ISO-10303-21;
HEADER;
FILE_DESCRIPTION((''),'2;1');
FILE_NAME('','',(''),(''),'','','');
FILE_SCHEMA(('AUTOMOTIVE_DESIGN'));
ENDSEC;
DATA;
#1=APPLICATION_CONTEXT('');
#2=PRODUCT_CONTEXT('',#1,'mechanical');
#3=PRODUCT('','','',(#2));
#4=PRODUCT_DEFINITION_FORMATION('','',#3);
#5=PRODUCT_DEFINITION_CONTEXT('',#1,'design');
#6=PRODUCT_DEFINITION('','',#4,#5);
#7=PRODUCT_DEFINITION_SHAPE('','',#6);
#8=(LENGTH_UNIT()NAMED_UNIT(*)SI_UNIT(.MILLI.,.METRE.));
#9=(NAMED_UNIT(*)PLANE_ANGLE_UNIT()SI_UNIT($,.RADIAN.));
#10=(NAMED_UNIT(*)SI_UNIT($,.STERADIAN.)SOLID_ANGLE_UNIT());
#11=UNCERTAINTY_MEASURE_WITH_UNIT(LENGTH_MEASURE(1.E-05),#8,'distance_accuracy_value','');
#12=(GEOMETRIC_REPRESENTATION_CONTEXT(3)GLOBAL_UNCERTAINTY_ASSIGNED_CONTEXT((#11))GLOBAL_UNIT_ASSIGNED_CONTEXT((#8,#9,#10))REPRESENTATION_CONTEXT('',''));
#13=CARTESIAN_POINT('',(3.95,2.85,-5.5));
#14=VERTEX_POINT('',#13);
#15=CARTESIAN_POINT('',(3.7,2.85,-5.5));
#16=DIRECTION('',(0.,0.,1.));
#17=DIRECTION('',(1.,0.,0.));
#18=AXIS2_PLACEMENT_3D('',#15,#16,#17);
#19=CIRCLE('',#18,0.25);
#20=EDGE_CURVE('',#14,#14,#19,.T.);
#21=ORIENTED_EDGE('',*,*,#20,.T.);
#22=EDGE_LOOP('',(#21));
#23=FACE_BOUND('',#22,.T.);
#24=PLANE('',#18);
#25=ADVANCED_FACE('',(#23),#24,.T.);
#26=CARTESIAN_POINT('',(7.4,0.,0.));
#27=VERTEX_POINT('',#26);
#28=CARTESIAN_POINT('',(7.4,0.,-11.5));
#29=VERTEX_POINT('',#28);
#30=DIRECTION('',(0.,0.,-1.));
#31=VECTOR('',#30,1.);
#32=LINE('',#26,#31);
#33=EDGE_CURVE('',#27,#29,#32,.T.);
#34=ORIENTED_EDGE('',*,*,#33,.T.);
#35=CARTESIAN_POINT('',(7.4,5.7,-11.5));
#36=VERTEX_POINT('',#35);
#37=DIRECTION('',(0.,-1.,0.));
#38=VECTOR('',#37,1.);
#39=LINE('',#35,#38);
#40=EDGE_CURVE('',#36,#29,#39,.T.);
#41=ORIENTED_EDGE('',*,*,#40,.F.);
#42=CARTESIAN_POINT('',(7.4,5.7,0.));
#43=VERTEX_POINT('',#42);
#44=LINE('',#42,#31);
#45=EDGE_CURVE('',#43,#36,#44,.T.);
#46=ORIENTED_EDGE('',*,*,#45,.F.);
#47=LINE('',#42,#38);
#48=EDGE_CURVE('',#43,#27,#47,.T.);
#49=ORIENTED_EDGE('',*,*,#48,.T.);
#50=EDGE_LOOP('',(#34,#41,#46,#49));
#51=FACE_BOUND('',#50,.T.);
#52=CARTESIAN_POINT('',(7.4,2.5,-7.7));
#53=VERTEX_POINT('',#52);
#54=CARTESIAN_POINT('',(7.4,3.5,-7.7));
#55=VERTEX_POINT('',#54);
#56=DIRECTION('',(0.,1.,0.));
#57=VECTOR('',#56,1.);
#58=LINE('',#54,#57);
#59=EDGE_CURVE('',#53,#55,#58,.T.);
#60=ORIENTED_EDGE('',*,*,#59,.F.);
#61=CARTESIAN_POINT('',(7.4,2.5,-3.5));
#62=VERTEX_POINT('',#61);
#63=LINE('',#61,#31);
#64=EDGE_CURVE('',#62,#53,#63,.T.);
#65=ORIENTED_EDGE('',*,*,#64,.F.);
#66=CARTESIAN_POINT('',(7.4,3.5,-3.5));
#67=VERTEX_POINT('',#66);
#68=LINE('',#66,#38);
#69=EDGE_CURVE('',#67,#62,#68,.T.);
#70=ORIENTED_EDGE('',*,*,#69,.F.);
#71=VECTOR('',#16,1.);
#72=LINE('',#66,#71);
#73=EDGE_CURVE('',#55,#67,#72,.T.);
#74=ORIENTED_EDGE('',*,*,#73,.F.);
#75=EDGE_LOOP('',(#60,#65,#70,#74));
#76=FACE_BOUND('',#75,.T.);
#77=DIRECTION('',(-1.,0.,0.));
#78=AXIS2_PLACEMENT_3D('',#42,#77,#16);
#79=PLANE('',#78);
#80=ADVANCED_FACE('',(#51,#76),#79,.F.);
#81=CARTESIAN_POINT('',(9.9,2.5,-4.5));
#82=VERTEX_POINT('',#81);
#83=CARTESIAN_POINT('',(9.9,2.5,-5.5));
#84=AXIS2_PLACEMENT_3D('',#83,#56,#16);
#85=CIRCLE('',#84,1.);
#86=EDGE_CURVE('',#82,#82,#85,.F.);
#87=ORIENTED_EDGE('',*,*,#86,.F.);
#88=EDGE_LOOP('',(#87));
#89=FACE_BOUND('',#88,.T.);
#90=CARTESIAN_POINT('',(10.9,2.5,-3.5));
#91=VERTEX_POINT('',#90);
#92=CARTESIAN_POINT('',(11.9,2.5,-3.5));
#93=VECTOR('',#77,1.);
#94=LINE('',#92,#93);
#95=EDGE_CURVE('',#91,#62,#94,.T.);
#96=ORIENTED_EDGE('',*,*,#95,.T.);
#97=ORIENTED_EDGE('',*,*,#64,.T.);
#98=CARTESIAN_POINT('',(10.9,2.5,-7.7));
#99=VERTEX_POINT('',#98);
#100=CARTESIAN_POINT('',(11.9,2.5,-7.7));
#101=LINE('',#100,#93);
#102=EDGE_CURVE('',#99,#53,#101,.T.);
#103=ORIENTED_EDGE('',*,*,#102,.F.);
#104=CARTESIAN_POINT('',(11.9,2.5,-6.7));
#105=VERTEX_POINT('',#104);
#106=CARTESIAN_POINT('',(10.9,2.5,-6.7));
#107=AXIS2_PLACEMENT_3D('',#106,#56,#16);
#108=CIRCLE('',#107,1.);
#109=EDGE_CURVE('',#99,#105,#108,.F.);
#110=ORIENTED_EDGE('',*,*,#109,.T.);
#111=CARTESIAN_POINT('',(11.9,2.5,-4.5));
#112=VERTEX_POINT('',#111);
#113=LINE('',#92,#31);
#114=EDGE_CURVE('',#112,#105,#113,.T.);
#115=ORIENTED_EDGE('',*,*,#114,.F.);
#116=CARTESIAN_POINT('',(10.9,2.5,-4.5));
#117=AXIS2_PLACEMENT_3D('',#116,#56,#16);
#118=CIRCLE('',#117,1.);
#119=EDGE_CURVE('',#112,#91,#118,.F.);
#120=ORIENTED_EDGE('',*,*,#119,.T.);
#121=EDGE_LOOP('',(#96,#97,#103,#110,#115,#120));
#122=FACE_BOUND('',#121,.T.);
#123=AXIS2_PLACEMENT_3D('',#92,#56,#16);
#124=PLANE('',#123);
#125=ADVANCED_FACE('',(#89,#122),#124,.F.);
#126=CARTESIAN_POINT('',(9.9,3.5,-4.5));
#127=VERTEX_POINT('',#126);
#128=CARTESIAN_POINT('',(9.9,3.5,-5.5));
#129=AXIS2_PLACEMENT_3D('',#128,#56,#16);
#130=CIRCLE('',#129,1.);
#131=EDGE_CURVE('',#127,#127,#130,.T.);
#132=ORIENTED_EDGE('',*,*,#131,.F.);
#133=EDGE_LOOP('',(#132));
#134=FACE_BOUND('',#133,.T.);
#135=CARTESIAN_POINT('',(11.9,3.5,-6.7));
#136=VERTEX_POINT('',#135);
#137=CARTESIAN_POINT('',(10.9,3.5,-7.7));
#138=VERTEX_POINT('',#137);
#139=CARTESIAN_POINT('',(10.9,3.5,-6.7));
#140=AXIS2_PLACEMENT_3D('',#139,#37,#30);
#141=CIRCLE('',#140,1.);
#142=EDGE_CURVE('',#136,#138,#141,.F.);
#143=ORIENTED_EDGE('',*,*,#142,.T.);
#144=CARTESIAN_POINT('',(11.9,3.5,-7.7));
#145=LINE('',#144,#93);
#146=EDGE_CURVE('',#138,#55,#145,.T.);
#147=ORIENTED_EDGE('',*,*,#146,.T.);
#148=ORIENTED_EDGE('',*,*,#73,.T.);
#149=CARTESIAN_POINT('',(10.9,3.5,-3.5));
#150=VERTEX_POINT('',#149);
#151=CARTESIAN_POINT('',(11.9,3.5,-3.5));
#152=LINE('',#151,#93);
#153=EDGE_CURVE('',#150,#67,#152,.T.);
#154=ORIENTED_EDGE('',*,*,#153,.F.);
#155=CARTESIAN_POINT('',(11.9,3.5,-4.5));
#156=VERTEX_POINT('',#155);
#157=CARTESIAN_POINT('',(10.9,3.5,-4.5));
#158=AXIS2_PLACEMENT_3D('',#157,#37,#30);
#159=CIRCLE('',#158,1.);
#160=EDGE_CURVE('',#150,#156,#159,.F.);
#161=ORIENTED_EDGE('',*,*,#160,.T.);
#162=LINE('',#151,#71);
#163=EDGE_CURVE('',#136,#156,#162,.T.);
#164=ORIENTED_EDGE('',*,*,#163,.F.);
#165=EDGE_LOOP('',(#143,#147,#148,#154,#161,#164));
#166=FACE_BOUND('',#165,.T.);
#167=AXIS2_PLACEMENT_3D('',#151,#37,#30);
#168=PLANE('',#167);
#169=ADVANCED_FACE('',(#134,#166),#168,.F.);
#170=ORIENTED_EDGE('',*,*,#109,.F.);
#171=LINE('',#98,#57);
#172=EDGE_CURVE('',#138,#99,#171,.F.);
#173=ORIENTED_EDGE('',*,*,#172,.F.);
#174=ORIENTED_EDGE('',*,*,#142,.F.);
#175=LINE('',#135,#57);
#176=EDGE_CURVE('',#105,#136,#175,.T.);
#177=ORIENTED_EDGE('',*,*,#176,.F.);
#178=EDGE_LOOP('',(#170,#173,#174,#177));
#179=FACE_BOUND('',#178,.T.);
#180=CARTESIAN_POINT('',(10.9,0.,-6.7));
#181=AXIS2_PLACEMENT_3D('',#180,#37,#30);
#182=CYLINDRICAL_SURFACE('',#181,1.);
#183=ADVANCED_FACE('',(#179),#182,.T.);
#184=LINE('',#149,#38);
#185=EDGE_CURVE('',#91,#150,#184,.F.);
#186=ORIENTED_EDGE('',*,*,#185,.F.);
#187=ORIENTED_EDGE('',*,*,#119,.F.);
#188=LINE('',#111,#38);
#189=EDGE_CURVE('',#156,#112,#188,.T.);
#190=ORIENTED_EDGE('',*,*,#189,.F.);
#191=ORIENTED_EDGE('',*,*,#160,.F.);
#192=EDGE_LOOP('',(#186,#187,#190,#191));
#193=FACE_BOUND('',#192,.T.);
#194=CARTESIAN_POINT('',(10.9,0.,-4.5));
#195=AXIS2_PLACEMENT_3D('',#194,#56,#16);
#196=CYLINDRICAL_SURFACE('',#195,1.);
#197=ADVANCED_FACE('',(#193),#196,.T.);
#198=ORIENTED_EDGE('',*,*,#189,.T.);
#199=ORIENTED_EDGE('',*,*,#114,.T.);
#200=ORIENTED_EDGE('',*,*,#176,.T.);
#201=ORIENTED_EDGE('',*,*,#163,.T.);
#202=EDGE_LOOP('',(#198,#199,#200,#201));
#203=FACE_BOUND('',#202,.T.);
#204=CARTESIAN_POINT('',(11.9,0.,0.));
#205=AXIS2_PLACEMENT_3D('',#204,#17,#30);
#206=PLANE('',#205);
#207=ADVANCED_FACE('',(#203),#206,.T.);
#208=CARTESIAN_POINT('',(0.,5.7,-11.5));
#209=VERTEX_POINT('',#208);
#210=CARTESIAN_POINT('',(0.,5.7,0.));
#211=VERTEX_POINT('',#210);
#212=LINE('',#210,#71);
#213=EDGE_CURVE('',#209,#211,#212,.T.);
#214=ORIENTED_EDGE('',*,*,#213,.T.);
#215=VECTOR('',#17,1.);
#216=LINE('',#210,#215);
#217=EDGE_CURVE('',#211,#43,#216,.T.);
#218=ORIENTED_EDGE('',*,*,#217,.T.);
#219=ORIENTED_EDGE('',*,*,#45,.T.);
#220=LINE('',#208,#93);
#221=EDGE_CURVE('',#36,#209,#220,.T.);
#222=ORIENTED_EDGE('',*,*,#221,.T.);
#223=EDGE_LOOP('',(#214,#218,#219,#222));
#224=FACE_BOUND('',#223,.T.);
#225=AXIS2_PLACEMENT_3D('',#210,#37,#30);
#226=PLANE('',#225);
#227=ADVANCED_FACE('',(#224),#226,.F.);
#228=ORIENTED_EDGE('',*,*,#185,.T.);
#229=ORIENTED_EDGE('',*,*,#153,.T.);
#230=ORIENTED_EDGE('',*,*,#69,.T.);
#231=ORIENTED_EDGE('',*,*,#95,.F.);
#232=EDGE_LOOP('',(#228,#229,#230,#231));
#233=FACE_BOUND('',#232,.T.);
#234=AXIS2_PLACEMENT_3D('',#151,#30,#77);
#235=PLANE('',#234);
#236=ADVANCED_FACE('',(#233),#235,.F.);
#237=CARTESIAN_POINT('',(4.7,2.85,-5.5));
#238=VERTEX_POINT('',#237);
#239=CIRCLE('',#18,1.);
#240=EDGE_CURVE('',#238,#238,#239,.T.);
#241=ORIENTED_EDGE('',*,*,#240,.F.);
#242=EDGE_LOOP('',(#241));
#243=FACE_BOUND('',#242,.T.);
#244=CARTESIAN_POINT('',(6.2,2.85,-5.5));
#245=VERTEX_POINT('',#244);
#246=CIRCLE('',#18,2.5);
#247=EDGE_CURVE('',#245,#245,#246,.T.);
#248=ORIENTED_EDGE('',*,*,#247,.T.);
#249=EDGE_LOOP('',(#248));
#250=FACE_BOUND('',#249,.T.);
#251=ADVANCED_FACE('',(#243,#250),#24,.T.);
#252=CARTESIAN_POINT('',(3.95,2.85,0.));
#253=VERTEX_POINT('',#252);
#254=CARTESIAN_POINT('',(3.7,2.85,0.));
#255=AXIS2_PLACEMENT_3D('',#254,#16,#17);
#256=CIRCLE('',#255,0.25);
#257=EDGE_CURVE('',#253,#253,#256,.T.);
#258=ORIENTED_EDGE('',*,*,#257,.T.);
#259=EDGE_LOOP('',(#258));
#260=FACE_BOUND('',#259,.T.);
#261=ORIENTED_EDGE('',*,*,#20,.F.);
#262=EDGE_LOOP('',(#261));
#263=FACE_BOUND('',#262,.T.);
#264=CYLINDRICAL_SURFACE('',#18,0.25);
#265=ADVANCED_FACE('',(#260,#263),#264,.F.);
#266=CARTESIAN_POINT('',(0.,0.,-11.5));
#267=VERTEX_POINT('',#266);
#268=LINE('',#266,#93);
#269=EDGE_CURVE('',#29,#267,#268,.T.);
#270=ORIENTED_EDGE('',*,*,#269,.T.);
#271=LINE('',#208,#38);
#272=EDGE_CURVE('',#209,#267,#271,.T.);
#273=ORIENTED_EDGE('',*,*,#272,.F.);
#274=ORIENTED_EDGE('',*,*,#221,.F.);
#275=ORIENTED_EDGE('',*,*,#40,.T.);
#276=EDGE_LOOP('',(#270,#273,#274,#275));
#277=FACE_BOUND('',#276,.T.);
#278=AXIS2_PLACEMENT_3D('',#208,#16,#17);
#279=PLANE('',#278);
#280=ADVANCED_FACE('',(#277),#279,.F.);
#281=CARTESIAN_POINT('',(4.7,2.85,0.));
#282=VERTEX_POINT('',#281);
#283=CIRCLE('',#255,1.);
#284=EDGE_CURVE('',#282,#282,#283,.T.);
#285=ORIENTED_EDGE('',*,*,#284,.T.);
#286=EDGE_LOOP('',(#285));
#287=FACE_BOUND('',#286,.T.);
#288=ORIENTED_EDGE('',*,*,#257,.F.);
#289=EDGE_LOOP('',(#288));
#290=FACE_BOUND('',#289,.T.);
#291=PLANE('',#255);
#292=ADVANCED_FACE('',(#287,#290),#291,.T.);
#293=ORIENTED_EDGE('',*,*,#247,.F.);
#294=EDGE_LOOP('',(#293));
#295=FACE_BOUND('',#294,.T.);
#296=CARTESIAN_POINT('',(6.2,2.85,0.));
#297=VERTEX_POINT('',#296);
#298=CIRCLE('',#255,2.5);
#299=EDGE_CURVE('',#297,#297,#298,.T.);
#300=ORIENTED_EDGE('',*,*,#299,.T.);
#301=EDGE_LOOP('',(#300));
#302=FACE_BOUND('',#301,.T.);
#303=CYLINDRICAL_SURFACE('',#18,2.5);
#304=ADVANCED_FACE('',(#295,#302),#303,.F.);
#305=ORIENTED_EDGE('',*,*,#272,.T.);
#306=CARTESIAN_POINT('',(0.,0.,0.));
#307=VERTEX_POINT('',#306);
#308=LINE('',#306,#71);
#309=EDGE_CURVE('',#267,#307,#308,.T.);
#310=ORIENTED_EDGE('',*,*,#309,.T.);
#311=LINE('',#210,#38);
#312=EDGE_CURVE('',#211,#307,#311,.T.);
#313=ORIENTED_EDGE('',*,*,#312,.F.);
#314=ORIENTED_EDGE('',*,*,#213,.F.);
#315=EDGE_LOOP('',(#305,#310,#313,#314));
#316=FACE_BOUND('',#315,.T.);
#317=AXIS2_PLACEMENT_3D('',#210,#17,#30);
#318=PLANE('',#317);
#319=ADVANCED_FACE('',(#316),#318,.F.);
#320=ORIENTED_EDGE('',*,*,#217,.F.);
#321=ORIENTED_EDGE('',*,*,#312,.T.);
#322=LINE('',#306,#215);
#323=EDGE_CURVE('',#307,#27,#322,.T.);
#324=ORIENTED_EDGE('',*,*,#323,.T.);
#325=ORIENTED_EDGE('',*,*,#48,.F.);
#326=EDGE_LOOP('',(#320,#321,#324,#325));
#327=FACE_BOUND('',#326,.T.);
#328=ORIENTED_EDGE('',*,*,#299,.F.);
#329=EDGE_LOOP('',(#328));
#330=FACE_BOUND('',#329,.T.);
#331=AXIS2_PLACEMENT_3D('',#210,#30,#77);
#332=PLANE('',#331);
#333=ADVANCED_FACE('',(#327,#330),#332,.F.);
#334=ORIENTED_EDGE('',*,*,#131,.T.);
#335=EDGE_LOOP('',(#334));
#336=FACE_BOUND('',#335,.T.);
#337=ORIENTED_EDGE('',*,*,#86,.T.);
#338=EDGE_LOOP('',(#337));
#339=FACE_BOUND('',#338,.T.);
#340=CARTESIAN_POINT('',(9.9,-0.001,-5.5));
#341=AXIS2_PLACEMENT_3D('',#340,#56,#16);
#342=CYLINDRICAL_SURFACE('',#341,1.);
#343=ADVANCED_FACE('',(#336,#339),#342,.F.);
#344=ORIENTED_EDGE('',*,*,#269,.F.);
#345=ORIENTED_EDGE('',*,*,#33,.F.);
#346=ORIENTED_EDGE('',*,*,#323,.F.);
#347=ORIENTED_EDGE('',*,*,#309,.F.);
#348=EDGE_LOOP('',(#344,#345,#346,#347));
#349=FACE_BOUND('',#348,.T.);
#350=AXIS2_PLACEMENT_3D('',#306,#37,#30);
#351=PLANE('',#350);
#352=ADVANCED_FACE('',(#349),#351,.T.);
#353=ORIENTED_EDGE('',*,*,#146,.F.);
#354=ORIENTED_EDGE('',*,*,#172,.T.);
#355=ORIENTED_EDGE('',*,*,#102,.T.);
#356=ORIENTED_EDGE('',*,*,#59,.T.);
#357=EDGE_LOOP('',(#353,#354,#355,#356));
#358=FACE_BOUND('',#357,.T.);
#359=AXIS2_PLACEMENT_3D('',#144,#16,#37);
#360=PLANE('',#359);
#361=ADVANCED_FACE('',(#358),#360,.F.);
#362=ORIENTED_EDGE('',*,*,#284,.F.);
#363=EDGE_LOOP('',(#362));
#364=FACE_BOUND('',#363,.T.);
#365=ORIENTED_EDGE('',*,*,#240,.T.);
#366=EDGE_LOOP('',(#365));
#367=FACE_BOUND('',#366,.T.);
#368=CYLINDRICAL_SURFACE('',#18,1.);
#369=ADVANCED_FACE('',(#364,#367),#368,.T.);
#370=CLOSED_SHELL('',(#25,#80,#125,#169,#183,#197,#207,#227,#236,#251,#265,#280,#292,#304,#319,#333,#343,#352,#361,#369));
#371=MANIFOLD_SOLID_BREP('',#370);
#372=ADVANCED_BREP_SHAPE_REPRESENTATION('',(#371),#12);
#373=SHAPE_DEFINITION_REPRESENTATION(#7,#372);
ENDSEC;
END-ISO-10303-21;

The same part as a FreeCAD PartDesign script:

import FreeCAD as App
import Part
import Sketcher

V = App.Vector


def edges_at(feature, points):
    """Names of the edges that pass closest to the given points."""
    edges = feature.Shape.Edges
    near = lambda p: min(range(len(edges)), key=lambda i: edges[i].distToShape(Part.Vertex(*p))[0])
    return sorted({f"Edge{near(p) + 1}" for p in points})

doc = App.newDocument("Part")
params = doc.addObject("Spreadsheet::Sheet", "Params")
for row, (alias, value) in enumerate([
    ("sketch1_width", "7.4 mm"),
    ("sketch1_height", "11.5 mm"),
    ("pad1_length", "5.7 mm"),
    ("sketch2_diameter", "5 mm"),
    ("pocket1_length", "5.5 mm"),
    ("sketch3_diameter", "2 mm"),
    ("pad2_length", "5.5 mm"),
    ("sketch4_diameter", "0.5 mm"),
    ("pocket2_length", "5.5 mm"),
    ("sketch5_width", "1 mm"),
    ("sketch5_height", "4.2 mm"),
    ("pad3_length", "4.5 mm"),
    ("fillet_radius", "1 mm"),
    ("sketch6_diameter", "2 mm"),
], start=1):
    params.set(f"A{row}", alias)
    params.set(f"B{row}", "=" + value)
    params.setAlias(f"B{row}", alias)

body = doc.addObject("PartDesign::Body", "Body")

# Sketch on XZ plane
sketch1 = doc.addObject("Sketcher::SketchObject", "Sketch")
body.addObject(sketch1)
sketch1.AttachmentSupport = (doc.XZ_Plane, [""])
sketch1.MapMode = "FlatFace"
sketch1.addGeometry(Part.LineSegment(V(0, -12, 0), V(0, 0, 0)), False)
sketch1.addGeometry(Part.LineSegment(V(0, 0, 0), V(7, 0, 0)), False)
sketch1.addGeometry(Part.LineSegment(V(7, 0, 0), V(7, -12, 0)), False)
sketch1.addGeometry(Part.LineSegment(V(7, -12, 0), V(0, -12, 0)), False)
sketch1.addConstraint(Sketcher.Constraint("Coincident", 0, 2, 1, 1))
sketch1.addConstraint(Sketcher.Constraint("Coincident", 1, 2, 2, 1))
sketch1.addConstraint(Sketcher.Constraint("Coincident", 2, 2, 3, 1))
sketch1.addConstraint(Sketcher.Constraint("Coincident", 3, 2, 0, 1))
sketch1.addConstraint(Sketcher.Constraint("Vertical", 0))
sketch1.addConstraint(Sketcher.Constraint("Horizontal", 1))
sketch1.addConstraint(Sketcher.Constraint("Vertical", 2))
sketch1.addConstraint(Sketcher.Constraint("Horizontal", 3))
sketch1.addConstraint(Sketcher.Constraint("Coincident", 0, 2, -1, 1))
sketch1.addConstraint(Sketcher.Constraint("DistanceX", 1, 1, 1, 2, 7.4))
sketch1.addConstraint(Sketcher.Constraint("DistanceY", 0, 1, 0, 2, 11.5))
sketch1.setExpression("Constraints[9]", "Params.sketch1_width")
sketch1.setExpression("Constraints[10]", "Params.sketch1_height")
pad1 = doc.addObject("PartDesign::Pad", "Pad")
body.addObject(pad1)
pad1.Profile = sketch1
pad1.setExpression("Length", "Params.pad1_length")
pad1.Reversed = True

# Sketch on XY plane
sketch2 = doc.addObject("Sketcher::SketchObject", "Sketch001")
body.addObject(sketch2)
sketch2.AttachmentSupport = (doc.XY_Plane, [""])
sketch2.MapMode = "FlatFace"
sketch2.addGeometry(Part.Circle(V(3.7, 2.9, 0), V(0, 0, 1), 2.5), False)
sketch2.addConstraint(Sketcher.Constraint("Diameter", 0, 5.0))
sketch2.addConstraint(Sketcher.Constraint("DistanceX", -1, 1, 0, 3, 3.7))
sketch2.addConstraint(Sketcher.Constraint("DistanceY", -1, 1, 0, 3, 2.85))
sketch2.setExpression("Constraints[0]", "Params.sketch2_diameter")
pocket1 = doc.addObject("PartDesign::Pocket", "Pocket")
body.addObject(pocket1)
pocket1.Profile = sketch2
pocket1.setExpression("Length", "Params.pocket1_length")

# Sketch on XY plane
sketch3 = doc.addObject("Sketcher::SketchObject", "Sketch002")
body.addObject(sketch3)
sketch3.AttachmentSupport = (doc.XY_Plane, [""])
sketch3.MapMode = "FlatFace"
sketch3.addGeometry(Part.Circle(V(3.7, 2.9, 0), V(0, 0, 1), 1), False)
sketch3.addConstraint(Sketcher.Constraint("Diameter", 0, 2.0))
sketch3.addConstraint(Sketcher.Constraint("DistanceX", -1, 1, 0, 3, 3.7))
sketch3.addConstraint(Sketcher.Constraint("DistanceY", -1, 1, 0, 3, 2.85))
sketch3.setExpression("Constraints[0]", "Params.sketch3_diameter")
pad2 = doc.addObject("PartDesign::Pad", "Pad001")
body.addObject(pad2)
pad2.Profile = sketch3
pad2.setExpression("Length", "Params.pad2_length")
pad2.Reversed = True

# Sketch on XY plane
sketch4 = doc.addObject("Sketcher::SketchObject", "Sketch003")
body.addObject(sketch4)
sketch4.AttachmentSupport = (doc.XY_Plane, [""])
sketch4.MapMode = "FlatFace"
sketch4.addGeometry(Part.Circle(V(3.7, 2.85, 0), V(0, 0, 1), 0.25), False)
sketch4.addConstraint(Sketcher.Constraint("Diameter", 0, 0.5))
sketch4.addConstraint(Sketcher.Constraint("DistanceX", -1, 1, 0, 3, 3.7))
sketch4.addConstraint(Sketcher.Constraint("DistanceY", -1, 1, 0, 3, 2.85))
sketch4.setExpression("Constraints[0]", "Params.sketch4_diameter")
pocket2 = doc.addObject("PartDesign::Pocket", "Pocket001")
body.addObject(pocket2)
pocket2.Profile = sketch4
pocket2.setExpression("Length", "Params.pocket2_length")

# Sketch on YZ plane
sketch5 = doc.addObject("Sketcher::SketchObject", "Sketch004")
body.addObject(sketch5)
sketch5.AttachmentSupport = (doc.YZ_Plane, [""])
sketch5.MapMode = "FlatFace"
sketch5.AttachmentOffset = App.Placement(V(0, 0, 7.4), App.Rotation())
sketch5.addGeometry(Part.LineSegment(V(3.5, -3.5, 0), V(2.5, -3.5, 0)), False)
sketch5.addGeometry(Part.LineSegment(V(2.5, -3.5, 0), V(2.5, -7.7, 0)), False)
sketch5.addGeometry(Part.LineSegment(V(2.5, -7.7, 0), V(3.5, -7.7, 0)), False)
sketch5.addGeometry(Part.LineSegment(V(3.5, -7.7, 0), V(3.5, -3.5, 0)), False)
sketch5.addConstraint(Sketcher.Constraint("Coincident", 0, 2, 1, 1))
sketch5.addConstraint(Sketcher.Constraint("Coincident", 1, 2, 2, 1))
sketch5.addConstraint(Sketcher.Constraint("Coincident", 2, 2, 3, 1))
sketch5.addConstraint(Sketcher.Constraint("Coincident", 3, 2, 0, 1))
sketch5.addConstraint(Sketcher.Constraint("Horizontal", 0))
sketch5.addConstraint(Sketcher.Constraint("Vertical", 1))
sketch5.addConstraint(Sketcher.Constraint("Horizontal", 2))
sketch5.addConstraint(Sketcher.Constraint("Vertical", 3))
sketch5.addConstraint(Sketcher.Constraint("DistanceX", 0, 2, 0, 1, 1.0))
sketch5.addConstraint(Sketcher.Constraint("DistanceY", 1, 2, 1, 1, 4.2))
sketch5.addConstraint(Sketcher.Constraint("DistanceX", -1, 1, 0, 2, 2.5))
sketch5.addConstraint(Sketcher.Constraint("DistanceY", 0, 2, -1, 1, 3.5))
sketch5.setExpression("Constraints[8]", "Params.sketch5_width")
sketch5.setExpression("Constraints[9]", "Params.sketch5_height")
pad3 = doc.addObject("PartDesign::Pad", "Pad002")
body.addObject(pad3)
pad3.Profile = sketch5
pad3.setExpression("Length", "Params.pad3_length")
doc.recompute()

fillet = doc.addObject("PartDesign::Fillet", "Fillet")
body.addObject(fillet)
fillet.Base = (pad3, edges_at(pad3, [(11.9, 3, -3.5), (11.9, 3, -7.7)]))
fillet.setExpression("Radius", "Params.fillet_radius")

# Sketch on XZ plane
sketch6 = doc.addObject("Sketcher::SketchObject", "Sketch005")
body.addObject(sketch6)
sketch6.AttachmentSupport = (doc.XZ_Plane, [""])
sketch6.MapMode = "FlatFace"
sketch6.AttachmentOffset = App.Placement(V(0, 0, -3.5), App.Rotation())
sketch6.addGeometry(Part.Circle(V(9.9, -5.5, 0), V(0, 0, 1), 1), False)
sketch6.addConstraint(Sketcher.Constraint("Diameter", 0, 2.0))
sketch6.addConstraint(Sketcher.Constraint("DistanceX", -1, 1, 0, 3, 9.9))
sketch6.addConstraint(Sketcher.Constraint("DistanceY", 0, 3, -1, 1, 5.5))
sketch6.setExpression("Constraints[0]", "Params.sketch6_diameter")
pocket3 = doc.addObject("PartDesign::Pocket", "Pocket002")
body.addObject(pocket3)
pocket3.Profile = sketch6
pocket3.Type = "UpToFirst"
pocket3.Reversed = True

doc.recompute()
